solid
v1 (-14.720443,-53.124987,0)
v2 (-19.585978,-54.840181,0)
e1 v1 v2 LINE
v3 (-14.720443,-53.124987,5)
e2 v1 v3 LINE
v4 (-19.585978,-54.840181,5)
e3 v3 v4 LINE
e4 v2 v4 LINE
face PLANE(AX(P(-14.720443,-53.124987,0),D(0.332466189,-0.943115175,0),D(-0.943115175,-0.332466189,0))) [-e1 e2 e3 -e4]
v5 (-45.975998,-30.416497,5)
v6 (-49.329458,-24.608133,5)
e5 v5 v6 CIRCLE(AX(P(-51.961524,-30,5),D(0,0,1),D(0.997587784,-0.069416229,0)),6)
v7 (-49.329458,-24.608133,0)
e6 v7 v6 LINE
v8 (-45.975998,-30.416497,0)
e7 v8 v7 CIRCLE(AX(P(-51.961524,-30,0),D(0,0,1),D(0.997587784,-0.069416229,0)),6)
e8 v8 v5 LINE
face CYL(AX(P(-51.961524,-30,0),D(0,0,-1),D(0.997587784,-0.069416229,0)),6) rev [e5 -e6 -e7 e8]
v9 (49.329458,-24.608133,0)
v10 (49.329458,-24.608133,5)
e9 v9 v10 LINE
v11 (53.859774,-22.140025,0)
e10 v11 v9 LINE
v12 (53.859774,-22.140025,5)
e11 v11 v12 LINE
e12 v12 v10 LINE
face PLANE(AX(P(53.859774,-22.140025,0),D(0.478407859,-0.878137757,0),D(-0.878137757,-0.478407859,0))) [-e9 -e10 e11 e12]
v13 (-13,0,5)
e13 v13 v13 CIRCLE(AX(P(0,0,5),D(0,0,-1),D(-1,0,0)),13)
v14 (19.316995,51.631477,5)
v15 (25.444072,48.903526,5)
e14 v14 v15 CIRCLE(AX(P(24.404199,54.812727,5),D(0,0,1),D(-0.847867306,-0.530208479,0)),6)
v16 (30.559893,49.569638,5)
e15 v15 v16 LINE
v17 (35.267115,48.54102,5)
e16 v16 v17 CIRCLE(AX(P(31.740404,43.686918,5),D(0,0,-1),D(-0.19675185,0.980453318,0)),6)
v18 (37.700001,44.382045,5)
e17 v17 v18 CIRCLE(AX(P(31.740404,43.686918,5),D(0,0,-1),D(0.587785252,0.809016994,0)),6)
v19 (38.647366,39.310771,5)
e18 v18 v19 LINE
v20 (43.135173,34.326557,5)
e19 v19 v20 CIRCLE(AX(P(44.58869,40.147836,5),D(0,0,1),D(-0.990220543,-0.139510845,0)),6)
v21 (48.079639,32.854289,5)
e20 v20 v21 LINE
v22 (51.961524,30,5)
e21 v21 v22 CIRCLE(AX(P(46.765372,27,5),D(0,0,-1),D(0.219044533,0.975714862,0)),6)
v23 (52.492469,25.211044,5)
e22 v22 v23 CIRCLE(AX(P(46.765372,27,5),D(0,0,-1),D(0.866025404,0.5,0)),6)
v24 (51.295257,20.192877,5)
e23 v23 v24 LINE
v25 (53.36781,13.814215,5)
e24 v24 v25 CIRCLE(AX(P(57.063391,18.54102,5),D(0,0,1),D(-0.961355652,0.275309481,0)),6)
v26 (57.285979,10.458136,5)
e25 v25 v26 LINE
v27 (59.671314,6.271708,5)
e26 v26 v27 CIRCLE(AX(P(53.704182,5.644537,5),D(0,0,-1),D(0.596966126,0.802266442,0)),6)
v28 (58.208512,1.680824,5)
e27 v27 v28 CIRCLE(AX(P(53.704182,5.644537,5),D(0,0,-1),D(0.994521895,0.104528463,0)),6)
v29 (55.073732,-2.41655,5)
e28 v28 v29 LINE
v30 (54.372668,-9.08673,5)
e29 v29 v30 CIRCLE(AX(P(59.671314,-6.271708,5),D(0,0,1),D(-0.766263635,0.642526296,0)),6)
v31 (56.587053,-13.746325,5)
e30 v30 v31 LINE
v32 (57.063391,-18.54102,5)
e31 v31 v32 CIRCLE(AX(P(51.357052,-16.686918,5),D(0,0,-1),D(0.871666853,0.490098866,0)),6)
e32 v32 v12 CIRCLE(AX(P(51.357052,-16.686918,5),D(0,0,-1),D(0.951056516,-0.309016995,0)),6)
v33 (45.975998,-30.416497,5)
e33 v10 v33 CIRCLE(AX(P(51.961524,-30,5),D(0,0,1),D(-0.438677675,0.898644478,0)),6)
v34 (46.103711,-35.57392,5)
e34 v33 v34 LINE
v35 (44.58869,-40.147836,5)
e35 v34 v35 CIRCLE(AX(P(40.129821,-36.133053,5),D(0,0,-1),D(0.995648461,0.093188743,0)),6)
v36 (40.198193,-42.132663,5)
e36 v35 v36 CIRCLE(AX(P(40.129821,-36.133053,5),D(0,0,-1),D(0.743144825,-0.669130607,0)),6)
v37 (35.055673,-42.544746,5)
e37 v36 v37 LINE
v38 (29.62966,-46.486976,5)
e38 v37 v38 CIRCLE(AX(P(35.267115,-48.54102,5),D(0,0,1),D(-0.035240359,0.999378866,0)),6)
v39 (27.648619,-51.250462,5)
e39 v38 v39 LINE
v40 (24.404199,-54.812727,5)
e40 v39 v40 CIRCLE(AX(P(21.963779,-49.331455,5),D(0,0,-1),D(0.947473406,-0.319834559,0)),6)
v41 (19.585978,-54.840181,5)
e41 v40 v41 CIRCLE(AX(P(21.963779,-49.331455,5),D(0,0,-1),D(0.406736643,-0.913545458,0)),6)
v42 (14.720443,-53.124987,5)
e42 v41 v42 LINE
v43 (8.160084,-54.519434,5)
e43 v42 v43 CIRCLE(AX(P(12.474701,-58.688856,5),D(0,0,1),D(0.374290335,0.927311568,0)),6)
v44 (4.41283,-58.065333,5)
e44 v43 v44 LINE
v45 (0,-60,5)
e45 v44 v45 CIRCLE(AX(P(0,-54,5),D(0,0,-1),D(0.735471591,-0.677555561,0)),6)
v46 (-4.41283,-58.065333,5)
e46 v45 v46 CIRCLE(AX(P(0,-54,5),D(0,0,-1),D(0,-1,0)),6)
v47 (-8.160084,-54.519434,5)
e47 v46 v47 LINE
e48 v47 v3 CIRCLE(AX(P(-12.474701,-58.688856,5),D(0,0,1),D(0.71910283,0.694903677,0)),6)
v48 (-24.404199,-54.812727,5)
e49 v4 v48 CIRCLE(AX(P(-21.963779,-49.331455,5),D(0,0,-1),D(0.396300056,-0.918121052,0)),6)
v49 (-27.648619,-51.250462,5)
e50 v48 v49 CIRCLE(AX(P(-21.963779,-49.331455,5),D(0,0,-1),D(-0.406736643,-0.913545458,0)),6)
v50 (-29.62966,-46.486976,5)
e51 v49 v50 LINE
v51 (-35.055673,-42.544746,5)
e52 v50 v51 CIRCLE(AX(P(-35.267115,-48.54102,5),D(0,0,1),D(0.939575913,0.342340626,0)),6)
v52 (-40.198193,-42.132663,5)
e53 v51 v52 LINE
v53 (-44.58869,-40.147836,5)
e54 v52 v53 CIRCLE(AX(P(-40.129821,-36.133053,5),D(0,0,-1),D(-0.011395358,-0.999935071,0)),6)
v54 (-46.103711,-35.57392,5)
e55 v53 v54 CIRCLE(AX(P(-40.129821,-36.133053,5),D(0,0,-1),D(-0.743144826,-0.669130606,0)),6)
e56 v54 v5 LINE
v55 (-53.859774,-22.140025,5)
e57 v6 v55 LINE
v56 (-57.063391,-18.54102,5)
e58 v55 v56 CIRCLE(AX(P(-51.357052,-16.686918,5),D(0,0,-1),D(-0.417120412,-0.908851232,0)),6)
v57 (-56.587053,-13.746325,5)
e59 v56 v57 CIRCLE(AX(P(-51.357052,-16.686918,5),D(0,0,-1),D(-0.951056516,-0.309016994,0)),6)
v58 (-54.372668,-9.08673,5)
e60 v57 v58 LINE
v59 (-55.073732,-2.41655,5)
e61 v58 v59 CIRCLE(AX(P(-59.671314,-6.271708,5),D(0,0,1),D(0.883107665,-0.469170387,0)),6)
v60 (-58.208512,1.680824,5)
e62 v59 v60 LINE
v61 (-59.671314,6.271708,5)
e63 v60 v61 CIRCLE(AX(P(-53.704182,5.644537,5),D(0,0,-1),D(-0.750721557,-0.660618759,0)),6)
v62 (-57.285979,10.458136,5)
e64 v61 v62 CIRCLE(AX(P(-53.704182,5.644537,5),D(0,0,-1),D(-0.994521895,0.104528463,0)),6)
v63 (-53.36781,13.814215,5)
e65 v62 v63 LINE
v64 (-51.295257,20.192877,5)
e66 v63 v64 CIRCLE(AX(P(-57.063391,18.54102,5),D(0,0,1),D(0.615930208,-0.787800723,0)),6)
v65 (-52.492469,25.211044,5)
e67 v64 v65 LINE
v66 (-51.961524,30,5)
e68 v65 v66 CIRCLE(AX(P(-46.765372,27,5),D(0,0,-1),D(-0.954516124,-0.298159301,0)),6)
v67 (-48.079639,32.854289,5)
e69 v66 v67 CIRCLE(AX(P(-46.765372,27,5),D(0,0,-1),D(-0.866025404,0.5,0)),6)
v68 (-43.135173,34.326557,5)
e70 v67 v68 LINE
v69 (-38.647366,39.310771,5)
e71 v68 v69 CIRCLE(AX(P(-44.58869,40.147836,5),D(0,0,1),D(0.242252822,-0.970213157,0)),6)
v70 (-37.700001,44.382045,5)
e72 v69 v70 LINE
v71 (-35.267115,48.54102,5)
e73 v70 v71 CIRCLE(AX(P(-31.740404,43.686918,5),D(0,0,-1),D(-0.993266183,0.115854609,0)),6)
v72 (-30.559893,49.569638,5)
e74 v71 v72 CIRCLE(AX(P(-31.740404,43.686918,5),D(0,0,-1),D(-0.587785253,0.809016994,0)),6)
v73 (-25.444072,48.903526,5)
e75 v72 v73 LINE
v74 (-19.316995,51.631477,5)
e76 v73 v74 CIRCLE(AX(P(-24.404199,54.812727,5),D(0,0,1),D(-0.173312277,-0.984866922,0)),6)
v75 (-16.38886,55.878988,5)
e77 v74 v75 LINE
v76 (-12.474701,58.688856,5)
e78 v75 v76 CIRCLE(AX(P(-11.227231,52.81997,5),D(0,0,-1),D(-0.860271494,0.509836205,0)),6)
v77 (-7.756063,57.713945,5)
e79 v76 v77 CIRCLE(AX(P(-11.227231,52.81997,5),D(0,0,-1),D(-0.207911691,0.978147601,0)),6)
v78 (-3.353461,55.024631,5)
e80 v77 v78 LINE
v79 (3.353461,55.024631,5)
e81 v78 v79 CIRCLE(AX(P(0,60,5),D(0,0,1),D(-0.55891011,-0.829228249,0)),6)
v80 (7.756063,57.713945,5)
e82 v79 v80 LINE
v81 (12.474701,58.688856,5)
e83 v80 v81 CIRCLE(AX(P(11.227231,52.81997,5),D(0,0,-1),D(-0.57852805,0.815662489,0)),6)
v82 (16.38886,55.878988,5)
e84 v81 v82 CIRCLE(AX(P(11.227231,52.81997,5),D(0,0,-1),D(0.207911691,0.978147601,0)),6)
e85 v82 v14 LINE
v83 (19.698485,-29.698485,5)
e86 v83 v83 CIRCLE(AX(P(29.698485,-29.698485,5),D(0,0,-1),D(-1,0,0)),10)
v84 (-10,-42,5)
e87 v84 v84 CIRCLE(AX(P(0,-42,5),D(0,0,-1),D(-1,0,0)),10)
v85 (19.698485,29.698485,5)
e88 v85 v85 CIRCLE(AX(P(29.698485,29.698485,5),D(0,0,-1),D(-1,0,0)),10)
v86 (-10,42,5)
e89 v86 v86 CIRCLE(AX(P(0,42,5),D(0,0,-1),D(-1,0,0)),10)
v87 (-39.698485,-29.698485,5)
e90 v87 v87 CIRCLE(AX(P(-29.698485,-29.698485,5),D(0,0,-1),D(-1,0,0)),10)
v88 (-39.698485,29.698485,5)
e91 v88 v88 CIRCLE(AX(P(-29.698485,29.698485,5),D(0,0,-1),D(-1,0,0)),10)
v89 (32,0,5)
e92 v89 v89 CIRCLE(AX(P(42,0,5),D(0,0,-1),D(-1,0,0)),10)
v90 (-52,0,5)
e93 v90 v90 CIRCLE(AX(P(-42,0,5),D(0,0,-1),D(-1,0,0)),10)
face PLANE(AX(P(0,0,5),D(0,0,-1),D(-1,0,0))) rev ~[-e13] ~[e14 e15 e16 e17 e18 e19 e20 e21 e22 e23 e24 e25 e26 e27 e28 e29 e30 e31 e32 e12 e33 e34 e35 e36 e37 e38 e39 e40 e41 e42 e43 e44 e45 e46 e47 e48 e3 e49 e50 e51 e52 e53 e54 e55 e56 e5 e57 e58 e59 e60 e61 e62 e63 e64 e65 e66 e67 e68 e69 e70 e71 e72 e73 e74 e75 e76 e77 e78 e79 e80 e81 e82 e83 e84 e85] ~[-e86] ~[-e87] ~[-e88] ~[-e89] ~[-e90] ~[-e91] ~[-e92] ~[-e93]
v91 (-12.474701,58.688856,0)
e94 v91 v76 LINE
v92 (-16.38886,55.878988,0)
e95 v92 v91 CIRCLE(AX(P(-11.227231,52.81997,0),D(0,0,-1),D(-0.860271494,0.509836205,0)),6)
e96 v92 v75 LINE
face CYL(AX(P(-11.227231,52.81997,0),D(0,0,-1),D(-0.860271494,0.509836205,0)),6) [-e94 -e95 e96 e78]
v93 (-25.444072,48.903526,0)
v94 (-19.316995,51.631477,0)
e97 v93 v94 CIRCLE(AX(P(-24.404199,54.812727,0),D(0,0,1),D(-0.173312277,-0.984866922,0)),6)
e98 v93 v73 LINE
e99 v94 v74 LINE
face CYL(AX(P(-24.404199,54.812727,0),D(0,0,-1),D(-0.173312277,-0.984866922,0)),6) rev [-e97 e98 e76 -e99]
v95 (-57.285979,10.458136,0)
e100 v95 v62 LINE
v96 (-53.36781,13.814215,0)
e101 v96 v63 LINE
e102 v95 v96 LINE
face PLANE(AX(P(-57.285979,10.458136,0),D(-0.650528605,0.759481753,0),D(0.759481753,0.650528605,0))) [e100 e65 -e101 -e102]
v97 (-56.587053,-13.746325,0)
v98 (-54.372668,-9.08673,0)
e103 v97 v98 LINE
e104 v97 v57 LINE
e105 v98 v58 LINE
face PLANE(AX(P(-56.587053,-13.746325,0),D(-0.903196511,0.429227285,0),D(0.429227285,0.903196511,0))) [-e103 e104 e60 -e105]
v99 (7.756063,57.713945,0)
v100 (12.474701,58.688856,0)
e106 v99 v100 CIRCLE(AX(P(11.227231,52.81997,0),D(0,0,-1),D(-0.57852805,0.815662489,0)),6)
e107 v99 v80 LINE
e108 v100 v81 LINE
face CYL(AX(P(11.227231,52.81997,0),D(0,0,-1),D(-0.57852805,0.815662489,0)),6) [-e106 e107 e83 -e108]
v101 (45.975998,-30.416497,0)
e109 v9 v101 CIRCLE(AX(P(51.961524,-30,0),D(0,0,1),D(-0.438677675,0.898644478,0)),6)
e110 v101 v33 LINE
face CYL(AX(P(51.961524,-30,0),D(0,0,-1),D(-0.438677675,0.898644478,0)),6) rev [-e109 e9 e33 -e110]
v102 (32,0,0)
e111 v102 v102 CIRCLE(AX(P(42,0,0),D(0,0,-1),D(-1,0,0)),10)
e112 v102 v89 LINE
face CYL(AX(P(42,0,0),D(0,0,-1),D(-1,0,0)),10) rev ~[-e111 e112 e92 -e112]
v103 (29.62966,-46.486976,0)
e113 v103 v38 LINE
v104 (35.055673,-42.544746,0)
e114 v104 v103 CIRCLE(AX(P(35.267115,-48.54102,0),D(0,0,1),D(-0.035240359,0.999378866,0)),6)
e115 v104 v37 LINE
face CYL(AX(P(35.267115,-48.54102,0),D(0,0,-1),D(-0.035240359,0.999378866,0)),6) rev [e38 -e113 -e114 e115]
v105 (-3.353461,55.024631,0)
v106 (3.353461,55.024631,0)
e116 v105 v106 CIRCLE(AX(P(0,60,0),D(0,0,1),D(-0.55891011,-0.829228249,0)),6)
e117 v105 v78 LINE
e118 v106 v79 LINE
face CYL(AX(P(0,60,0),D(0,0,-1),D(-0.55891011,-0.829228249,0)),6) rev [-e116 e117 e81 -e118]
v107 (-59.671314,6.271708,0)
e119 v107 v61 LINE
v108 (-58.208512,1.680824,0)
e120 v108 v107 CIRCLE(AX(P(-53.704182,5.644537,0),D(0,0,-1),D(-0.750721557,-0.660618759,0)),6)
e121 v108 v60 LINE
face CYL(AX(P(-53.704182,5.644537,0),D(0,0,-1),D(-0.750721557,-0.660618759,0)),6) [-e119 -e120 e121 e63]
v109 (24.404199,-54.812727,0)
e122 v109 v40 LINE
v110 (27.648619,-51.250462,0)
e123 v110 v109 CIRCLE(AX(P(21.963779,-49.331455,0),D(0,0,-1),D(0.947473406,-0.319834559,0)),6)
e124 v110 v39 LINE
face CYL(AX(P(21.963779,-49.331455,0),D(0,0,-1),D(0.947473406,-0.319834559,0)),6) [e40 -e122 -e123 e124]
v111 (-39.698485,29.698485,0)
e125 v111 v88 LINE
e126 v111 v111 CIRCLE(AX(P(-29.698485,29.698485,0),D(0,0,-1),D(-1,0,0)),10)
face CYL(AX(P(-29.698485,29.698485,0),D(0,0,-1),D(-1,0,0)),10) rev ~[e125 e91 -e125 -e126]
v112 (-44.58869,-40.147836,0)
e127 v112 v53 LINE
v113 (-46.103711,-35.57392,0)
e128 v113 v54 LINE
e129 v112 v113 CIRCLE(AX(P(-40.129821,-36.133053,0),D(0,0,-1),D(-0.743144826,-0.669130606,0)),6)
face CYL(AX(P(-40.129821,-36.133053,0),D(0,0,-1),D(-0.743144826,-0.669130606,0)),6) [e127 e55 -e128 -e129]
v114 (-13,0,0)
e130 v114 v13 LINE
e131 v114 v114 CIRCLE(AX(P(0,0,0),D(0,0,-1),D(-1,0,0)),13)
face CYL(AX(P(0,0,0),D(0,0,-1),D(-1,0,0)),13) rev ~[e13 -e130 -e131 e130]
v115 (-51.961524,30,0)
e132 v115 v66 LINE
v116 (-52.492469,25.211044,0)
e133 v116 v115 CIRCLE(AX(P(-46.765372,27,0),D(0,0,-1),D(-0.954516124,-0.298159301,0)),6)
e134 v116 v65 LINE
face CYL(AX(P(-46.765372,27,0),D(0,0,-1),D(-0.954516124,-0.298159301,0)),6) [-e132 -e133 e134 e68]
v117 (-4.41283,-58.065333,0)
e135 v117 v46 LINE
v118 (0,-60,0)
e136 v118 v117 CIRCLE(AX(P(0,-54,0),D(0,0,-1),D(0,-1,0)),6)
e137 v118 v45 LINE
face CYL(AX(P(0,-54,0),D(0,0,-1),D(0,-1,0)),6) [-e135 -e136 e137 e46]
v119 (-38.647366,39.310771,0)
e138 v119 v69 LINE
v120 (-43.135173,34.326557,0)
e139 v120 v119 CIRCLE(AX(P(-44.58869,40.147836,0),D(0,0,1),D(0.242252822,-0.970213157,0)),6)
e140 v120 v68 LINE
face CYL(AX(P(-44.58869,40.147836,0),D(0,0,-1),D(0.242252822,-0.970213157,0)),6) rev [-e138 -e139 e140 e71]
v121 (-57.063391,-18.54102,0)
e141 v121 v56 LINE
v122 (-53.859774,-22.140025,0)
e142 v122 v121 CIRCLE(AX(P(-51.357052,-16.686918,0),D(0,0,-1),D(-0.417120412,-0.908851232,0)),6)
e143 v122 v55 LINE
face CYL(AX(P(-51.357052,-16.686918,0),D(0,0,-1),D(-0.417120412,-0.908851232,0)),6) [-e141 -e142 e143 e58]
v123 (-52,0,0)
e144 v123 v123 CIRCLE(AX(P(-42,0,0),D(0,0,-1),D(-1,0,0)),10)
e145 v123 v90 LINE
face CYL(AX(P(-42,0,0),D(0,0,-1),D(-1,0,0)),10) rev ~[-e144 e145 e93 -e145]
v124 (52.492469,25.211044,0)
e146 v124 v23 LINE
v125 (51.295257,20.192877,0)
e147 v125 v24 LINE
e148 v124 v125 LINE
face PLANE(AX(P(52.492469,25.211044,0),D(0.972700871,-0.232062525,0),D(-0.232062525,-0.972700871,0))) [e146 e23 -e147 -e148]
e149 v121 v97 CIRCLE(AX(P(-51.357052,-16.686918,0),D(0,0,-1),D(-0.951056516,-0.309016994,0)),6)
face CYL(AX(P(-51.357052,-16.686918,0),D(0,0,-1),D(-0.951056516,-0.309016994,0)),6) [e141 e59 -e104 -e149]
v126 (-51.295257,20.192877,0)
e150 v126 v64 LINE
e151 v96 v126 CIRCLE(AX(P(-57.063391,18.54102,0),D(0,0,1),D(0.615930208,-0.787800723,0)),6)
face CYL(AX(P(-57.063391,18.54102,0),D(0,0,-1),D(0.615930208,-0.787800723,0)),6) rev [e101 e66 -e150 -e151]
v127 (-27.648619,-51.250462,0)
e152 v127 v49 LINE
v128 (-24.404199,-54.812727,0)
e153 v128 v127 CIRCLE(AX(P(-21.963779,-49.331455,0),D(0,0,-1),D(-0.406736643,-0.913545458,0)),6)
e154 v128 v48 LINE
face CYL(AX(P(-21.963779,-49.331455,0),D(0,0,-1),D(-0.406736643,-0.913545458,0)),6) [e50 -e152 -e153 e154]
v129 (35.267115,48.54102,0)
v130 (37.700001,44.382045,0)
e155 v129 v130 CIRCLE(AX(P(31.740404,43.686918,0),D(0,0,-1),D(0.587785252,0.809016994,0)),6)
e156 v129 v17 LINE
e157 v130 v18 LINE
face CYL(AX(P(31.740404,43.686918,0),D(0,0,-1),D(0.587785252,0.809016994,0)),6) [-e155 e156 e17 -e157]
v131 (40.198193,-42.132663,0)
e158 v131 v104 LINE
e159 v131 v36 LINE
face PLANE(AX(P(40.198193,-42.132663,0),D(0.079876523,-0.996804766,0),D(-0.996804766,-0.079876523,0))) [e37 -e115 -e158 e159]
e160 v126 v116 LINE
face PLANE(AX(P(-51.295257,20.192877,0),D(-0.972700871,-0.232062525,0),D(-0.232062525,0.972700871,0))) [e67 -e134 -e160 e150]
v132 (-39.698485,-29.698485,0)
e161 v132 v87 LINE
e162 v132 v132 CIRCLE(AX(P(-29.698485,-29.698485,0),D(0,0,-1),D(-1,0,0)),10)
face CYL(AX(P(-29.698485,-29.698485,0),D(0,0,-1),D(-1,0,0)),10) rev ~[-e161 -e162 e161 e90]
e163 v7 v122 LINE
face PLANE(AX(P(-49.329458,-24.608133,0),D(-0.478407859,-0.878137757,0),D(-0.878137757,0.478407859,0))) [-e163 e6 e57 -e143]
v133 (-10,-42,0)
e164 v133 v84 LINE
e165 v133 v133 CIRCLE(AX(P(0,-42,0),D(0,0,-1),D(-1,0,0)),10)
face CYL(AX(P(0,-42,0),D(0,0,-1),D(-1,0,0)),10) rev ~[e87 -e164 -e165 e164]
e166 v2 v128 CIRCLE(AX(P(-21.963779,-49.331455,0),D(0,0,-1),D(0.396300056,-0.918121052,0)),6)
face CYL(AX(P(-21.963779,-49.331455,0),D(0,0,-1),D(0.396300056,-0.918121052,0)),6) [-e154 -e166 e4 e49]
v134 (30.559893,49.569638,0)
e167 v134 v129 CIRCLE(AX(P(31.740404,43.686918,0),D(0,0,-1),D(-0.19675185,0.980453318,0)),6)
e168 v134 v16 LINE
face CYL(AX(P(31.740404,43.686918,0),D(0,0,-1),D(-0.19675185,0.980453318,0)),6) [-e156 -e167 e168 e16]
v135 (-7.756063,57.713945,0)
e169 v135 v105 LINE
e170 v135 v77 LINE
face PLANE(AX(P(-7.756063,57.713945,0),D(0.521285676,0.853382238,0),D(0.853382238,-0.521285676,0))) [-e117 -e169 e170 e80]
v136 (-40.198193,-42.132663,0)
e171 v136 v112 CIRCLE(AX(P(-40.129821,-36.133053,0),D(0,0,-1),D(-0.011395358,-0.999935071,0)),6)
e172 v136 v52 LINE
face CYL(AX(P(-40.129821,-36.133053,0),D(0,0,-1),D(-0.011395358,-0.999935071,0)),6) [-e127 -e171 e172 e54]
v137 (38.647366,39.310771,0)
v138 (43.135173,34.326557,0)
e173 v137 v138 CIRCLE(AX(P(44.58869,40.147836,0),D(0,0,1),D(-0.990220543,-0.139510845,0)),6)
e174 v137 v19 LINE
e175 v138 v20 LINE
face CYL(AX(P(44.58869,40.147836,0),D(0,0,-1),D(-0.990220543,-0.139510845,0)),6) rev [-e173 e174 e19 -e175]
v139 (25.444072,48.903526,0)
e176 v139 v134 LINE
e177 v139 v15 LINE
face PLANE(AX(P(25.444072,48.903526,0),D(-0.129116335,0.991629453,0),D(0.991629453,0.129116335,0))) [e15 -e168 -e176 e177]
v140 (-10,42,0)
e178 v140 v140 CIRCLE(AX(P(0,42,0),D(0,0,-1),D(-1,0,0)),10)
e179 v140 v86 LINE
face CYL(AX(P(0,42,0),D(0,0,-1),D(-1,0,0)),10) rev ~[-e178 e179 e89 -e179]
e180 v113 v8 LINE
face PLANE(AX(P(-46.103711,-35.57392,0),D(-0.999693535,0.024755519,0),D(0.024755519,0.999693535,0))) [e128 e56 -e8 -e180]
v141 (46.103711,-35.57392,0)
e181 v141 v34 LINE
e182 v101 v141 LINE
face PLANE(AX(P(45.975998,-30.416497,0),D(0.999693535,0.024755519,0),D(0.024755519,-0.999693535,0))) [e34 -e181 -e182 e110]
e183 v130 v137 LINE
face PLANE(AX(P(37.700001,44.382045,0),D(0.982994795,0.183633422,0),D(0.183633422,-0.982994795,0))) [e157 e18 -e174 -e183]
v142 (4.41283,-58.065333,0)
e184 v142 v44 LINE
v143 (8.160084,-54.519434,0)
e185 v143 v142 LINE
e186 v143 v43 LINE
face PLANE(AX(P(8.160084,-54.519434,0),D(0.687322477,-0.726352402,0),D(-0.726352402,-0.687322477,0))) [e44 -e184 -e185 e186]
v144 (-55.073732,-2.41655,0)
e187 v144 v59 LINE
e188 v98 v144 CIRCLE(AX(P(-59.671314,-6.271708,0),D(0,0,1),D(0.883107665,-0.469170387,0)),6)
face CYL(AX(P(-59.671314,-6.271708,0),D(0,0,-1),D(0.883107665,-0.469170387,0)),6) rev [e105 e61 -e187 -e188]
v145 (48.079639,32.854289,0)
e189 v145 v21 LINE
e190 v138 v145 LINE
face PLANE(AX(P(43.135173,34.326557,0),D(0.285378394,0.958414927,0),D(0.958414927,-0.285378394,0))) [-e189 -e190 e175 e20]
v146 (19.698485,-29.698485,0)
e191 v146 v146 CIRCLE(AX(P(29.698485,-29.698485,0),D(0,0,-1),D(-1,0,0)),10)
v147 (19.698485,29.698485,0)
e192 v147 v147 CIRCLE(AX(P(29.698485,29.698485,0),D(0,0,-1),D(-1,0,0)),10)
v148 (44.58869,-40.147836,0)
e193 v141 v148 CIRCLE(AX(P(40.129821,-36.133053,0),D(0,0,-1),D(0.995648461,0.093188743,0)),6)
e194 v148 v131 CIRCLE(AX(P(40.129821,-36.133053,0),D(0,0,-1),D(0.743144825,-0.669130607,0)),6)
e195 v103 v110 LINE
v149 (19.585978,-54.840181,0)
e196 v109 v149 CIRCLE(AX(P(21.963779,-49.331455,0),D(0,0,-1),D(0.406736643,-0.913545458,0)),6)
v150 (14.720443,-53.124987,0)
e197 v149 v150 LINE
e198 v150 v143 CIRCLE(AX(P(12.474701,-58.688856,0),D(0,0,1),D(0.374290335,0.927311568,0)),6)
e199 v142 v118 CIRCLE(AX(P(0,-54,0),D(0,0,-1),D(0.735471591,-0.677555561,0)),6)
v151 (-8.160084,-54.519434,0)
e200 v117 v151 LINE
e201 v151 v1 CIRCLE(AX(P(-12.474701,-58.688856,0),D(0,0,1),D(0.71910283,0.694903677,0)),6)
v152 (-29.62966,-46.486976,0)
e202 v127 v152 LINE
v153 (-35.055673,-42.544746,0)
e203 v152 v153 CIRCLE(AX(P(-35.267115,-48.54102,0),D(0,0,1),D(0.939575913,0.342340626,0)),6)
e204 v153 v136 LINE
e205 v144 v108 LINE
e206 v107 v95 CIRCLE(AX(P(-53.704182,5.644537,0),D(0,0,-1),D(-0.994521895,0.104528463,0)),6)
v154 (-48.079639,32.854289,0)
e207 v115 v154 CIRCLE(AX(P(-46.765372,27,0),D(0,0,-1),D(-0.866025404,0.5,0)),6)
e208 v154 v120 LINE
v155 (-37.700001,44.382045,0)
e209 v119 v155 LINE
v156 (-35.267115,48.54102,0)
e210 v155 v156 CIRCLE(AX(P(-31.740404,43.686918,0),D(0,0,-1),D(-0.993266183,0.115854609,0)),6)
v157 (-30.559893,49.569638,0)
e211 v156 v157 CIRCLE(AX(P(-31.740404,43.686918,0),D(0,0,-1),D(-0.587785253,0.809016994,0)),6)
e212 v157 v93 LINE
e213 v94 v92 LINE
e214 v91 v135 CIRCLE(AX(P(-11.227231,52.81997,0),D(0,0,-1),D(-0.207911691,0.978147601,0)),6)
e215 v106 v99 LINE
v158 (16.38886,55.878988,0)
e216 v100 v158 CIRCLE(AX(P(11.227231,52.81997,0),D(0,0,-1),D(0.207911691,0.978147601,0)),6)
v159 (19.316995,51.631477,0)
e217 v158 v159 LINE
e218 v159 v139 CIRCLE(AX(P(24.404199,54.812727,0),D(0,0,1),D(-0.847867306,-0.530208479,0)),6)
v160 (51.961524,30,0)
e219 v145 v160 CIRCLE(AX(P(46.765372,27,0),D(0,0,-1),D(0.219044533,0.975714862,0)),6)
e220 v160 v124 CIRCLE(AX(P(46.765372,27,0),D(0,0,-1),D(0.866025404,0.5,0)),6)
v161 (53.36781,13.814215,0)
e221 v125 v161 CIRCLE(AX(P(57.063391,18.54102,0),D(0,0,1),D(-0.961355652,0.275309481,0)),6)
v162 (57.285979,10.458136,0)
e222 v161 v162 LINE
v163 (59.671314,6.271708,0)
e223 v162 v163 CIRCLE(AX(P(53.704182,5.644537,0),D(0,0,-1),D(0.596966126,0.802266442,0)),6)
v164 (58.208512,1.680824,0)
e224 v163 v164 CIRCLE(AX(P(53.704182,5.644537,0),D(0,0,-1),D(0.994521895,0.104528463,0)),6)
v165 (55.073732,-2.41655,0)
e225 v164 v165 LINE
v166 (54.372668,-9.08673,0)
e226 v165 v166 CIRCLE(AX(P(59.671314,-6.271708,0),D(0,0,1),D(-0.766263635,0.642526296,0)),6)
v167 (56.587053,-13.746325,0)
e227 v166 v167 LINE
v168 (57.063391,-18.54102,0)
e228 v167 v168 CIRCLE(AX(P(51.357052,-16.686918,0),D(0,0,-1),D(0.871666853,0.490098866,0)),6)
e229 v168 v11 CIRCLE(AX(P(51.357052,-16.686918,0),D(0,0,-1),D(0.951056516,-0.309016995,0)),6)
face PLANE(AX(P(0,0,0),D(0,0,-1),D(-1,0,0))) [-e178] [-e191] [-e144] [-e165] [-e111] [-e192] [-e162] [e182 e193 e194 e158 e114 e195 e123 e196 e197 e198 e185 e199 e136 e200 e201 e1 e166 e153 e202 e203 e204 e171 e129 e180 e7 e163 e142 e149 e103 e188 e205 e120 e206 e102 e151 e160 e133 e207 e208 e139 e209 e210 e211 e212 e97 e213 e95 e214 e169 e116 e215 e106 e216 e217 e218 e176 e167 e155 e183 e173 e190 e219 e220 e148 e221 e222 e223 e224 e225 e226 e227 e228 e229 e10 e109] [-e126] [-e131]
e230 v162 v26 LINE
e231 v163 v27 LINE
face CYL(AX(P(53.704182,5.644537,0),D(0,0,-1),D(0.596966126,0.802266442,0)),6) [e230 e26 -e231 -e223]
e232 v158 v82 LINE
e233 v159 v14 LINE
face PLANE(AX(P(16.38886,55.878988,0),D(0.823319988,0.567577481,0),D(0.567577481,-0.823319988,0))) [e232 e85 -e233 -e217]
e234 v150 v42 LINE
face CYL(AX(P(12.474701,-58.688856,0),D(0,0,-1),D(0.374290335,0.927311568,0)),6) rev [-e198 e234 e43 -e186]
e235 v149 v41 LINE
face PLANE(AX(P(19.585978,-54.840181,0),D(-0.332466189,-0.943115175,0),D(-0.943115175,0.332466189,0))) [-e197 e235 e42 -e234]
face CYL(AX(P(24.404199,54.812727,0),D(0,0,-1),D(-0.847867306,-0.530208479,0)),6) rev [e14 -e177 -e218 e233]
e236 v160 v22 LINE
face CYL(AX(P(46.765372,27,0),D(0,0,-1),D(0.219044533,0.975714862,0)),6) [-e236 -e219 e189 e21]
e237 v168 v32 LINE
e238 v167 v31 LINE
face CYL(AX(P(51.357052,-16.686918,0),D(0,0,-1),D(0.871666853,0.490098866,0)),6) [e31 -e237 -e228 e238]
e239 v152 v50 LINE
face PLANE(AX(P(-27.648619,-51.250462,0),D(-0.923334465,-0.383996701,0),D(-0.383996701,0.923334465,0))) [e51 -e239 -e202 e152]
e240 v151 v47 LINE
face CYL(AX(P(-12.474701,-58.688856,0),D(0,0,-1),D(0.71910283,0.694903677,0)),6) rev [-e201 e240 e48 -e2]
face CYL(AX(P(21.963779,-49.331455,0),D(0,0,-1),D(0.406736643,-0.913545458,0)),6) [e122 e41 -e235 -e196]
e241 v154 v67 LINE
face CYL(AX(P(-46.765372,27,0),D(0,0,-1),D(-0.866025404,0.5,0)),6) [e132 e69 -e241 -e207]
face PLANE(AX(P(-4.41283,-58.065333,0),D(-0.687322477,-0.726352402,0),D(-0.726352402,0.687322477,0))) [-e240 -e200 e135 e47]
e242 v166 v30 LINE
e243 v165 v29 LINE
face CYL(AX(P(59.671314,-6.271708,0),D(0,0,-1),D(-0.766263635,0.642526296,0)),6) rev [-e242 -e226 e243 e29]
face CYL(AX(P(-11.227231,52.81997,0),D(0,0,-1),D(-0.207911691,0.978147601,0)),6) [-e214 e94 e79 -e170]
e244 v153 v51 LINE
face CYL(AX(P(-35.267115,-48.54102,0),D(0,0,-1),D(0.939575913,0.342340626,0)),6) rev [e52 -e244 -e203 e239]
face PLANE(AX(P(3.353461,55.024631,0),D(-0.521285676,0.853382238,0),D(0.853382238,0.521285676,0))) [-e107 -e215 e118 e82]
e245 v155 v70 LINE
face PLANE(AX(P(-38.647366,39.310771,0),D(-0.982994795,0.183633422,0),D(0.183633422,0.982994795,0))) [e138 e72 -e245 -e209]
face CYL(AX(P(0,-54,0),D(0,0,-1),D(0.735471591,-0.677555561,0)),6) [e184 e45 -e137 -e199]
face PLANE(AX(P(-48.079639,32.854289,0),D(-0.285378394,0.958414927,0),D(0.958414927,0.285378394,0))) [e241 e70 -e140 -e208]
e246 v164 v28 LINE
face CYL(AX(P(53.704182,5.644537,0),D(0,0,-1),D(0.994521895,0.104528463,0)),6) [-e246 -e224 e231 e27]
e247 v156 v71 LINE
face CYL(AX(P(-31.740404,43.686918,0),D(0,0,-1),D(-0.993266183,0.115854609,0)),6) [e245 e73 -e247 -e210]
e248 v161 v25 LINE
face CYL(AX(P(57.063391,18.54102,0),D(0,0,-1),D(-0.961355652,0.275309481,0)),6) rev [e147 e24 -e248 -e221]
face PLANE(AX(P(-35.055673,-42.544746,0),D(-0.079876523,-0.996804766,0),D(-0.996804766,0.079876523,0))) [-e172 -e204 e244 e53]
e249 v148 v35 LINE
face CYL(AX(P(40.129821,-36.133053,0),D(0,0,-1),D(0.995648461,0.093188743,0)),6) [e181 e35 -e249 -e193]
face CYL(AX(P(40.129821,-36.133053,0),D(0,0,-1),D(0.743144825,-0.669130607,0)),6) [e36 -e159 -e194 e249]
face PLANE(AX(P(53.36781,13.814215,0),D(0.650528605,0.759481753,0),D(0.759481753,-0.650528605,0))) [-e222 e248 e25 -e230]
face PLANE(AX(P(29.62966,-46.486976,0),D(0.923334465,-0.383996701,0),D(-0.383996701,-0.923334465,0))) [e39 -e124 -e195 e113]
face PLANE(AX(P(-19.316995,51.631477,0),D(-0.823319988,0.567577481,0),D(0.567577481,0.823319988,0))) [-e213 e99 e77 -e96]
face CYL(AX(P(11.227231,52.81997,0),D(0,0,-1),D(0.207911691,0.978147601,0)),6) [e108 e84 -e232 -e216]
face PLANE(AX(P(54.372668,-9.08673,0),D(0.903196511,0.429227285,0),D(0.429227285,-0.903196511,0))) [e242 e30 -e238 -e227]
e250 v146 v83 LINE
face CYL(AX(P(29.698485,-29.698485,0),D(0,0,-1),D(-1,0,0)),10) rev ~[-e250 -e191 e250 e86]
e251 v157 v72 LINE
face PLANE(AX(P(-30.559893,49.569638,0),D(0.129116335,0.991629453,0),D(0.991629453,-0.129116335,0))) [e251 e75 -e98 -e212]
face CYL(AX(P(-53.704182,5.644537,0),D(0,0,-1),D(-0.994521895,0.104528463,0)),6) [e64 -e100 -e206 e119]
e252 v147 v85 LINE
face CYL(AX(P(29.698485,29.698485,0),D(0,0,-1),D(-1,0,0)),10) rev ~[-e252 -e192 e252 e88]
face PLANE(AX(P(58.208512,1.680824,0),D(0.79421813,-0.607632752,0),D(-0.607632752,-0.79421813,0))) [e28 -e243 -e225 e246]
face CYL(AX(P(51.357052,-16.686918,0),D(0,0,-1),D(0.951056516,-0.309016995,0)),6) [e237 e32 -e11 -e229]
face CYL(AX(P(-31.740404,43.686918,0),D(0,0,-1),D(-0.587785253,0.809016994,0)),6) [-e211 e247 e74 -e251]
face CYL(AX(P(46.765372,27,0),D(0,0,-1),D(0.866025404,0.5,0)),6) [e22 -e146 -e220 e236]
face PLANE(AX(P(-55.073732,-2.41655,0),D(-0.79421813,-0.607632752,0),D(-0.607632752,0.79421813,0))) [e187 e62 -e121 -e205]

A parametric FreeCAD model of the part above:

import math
import FreeCAD as App
import Part
import Sketcher
from FreeCAD import Vector

doc = App.newDocument("Part")
body = doc.addObject("PartDesign::Body", "Body")

sketch1 = body.newObject("Sketcher::SketchObject", "Sketch")
sketch1.AttachmentSupport = (doc.getObject("XY_Plane"), [""])
sketch1.MapMode = "FlatFace"
sketch1.addGeometry([
    Part.LineSegment(Vector(-3.4, 55, 0), Vector(-7.8, 57.7, 0)),
    Part.ArcOfCircle(Part.Circle(Vector(-11.2, 52.8, 0), Vector(0, 0, 1), 6), math.radians(55), math.radians(102)),
    Part.ArcOfCircle(Part.Circle(Vector(-11.2, 52.8, 0), Vector(0, 0, 1), 6), math.radians(102), math.radians(149)),
    Part.LineSegment(Vector(-16.4, 55.9, 0), Vector(-19.3, 51.6, 0)),
    Part.ArcOfCircle(Part.Circle(Vector(-24.4, 54.8, 0), Vector(0, 0, 1), 6), math.radians(-100), math.radians(-32)),
    Part.LineSegment(Vector(-25.4, 48.9, 0), Vector(-30.6, 49.6, 0)),
    Part.ArcOfCircle(Part.Circle(Vector(-31.7, 43.7, 0), Vector(0, 0, 1), 6), math.radians(79), math.radians(126)),
    Part.ArcOfCircle(Part.Circle(Vector(-31.7, 43.7, 0), Vector(0, 0, 1), 6), math.radians(126), math.radians(173)),
    Part.LineSegment(Vector(-37.7, 44.4, 0), Vector(-38.6, 39.3, 0)),
    Part.ArcOfCircle(Part.Circle(Vector(-44.6, 40.1, 0), Vector(0, 0, 1), 6), math.radians(-76), math.radians(-8)),
    Part.LineSegment(Vector(-43.1, 34.3, 0), Vector(-48.1, 32.9, 0)),
    Part.ArcOfCircle(Part.Circle(Vector(-46.8, 27, 0), Vector(0, 0, 1), 6), math.radians(103), math.radians(150)),
    Part.ArcOfCircle(Part.Circle(Vector(-46.8, 27, 0), Vector(0, 0, 1), 6), math.radians(150), math.radians(197)),
    Part.LineSegment(Vector(-52.5, 25.2, 0), Vector(-51.3, 20.2, 0)),
    Part.ArcOfCircle(Part.Circle(Vector(-57.1, 18.5, 0), Vector(0, 0, 1), 6), math.radians(-52), math.radians(16)),
    Part.LineSegment(Vector(-53.4, 13.8, 0), Vector(-57.3, 10.5, 0)),
    Part.ArcOfCircle(Part.Circle(Vector(-53.7, 5.6, 0), Vector(0, 0, 1), 6), math.radians(127), math.radians(174)),
    Part.ArcOfCircle(Part.Circle(Vector(-53.7, 5.6, 0), Vector(0, 0, 1), 6), math.radians(174), math.radians(221)),
    Part.LineSegment(Vector(-58.2, 1.7, 0), Vector(-55.1, -2.4, 0)),
    Part.ArcOfCircle(Part.Circle(Vector(-59.7, -6.3, 0), Vector(0, 0, 1), 6), math.radians(-28), math.radians(40)),
    Part.LineSegment(Vector(-54.4, -9.1, 0), Vector(-56.6, -13.7, 0)),
    Part.ArcOfCircle(Part.Circle(Vector(-51.4, -16.7, 0), Vector(0, 0, 1), 6), math.radians(151), math.radians(198)),
    Part.ArcOfCircle(Part.Circle(Vector(-51.4, -16.7, 0), Vector(0, 0, 1), 6), math.radians(-162), math.radians(-115)),
    Part.LineSegment(Vector(-53.9, -22.1, 0), Vector(-49.3, -24.6, 0)),
    Part.ArcOfCircle(Part.Circle(Vector(-52, -30, 0), Vector(0, 0, 1), 6), math.radians(-4), math.radians(64)),
    Part.LineSegment(Vector(-46, -30.4, 0), Vector(-46.1, -35.6, 0)),
    Part.ArcOfCircle(Part.Circle(Vector(-40.1, -36.1, 0), Vector(0, 0, 1), 6), math.radians(175), math.radians(222)),
    Part.ArcOfCircle(Part.Circle(Vector(-40.1, -36.1, 0), Vector(0, 0, 1), 6), math.radians(-138), math.radians(-91)),
    Part.LineSegment(Vector(-40.2, -42.1, 0), Vector(-35.1, -42.5, 0)),
    Part.ArcOfCircle(Part.Circle(Vector(-35.3, -48.5, 0), Vector(0, 0, 1), 6), math.radians(20), math.radians(88)),
    Part.LineSegment(Vector(-29.6, -46.5, 0), Vector(-27.6, -51.3, 0)),
    Part.ArcOfCircle(Part.Circle(Vector(-22, -49.3, 0), Vector(0, 0, 1), 6), math.radians(-161), math.radians(-114)),
    Part.ArcOfCircle(Part.Circle(Vector(-22, -49.3, 0), Vector(0, 0, 1), 6), math.radians(-114), math.radians(-67)),
    Part.LineSegment(Vector(-19.6, -54.8, 0), Vector(-14.7, -53.1, 0)),
    Part.ArcOfCircle(Part.Circle(Vector(-12.5, -58.7, 0), Vector(0, 0, 1), 6), math.radians(44), math.radians(112)),
    Part.LineSegment(Vector(-8.2, -54.5, 0), Vector(-4.4, -58.1, 0)),
    Part.ArcOfCircle(Part.Circle(Vector(0, -54, 0), Vector(0, 0, 1), 6), math.radians(-137), math.radians(-90)),
    Part.ArcOfCircle(Part.Circle(Vector(0, -54, 0), Vector(0, 0, 1), 6), math.radians(-90), math.radians(-43)),
    Part.LineSegment(Vector(4.4, -58.1, 0), Vector(8.2, -54.5, 0)),
    Part.ArcOfCircle(Part.Circle(Vector(12.5, -58.7, 0), Vector(0, 0, 1), 6), math.radians(68), math.radians(136)),
    Part.LineSegment(Vector(14.7, -53.1, 0), Vector(19.6, -54.8, 0)),
    Part.ArcOfCircle(Part.Circle(Vector(22, -49.3, 0), Vector(0, 0, 1), 6), math.radians(-113), math.radians(-66)),
    Part.ArcOfCircle(Part.Circle(Vector(22, -49.3, 0), Vector(0, 0, 1), 6), math.radians(-66), math.radians(-19)),
    Part.LineSegment(Vector(27.6, -51.3, 0), Vector(29.6, -46.5, 0)),
    Part.ArcOfCircle(Part.Circle(Vector(35.3, -48.5, 0), Vector(0, 0, 1), 6), math.radians(92), math.radians(160)),
    Part.LineSegment(Vector(35.1, -42.5, 0), Vector(40.2, -42.1, 0)),
    Part.ArcOfCircle(Part.Circle(Vector(40.1, -36.1, 0), Vector(0, 0, 1), 6), math.radians(-89), math.radians(-42)),
    Part.ArcOfCircle(Part.Circle(Vector(40.1, -36.1, 0), Vector(0, 0, 1), 6), math.radians(-42), math.radians(5)),
    Part.LineSegment(Vector(46.1, -35.6, 0), Vector(46, -30.4, 0)),
    Part.ArcOfCircle(Part.Circle(Vector(52, -30, 0), Vector(0, 0, 1), 6), math.radians(116), math.radians(184)),
    Part.LineSegment(Vector(49.3, -24.6, 0), Vector(53.9, -22.1, 0)),
    Part.ArcOfCircle(Part.Circle(Vector(51.4, -16.7, 0), Vector(0, 0, 1), 6), math.radians(-65), math.radians(-18)),
    Part.ArcOfCircle(Part.Circle(Vector(51.4, -16.7, 0), Vector(0, 0, 1), 6), math.radians(-18), math.radians(29)),
    Part.LineSegment(Vector(56.6, -13.7, 0), Vector(54.4, -9.1, 0)),
    Part.ArcOfCircle(Part.Circle(Vector(59.7, -6.3, 0), Vector(0, 0, 1), 6), math.radians(140), math.radians(208)),
    Part.LineSegment(Vector(55.1, -2.4, 0), Vector(58.2, 1.7, 0)),
    Part.ArcOfCircle(Part.Circle(Vector(53.7, 5.6, 0), Vector(0, 0, 1), 6), math.radians(-41), math.radians(6)),
    Part.ArcOfCircle(Part.Circle(Vector(53.7, 5.6, 0), Vector(0, 0, 1), 6), math.radians(6), math.radians(53)),
    Part.LineSegment(Vector(57.3, 10.5, 0), Vector(53.4, 13.8, 0)),
    Part.ArcOfCircle(Part.Circle(Vector(57.1, 18.5, 0), Vector(0, 0, 1), 6), math.radians(164), math.radians(232)),
    Part.LineSegment(Vector(51.3, 20.2, 0), Vector(52.5, 25.2, 0)),
    Part.ArcOfCircle(Part.Circle(Vector(46.8, 27, 0), Vector(0, 0, 1), 6), math.radians(-17), math.radians(30)),
    Part.ArcOfCircle(Part.Circle(Vector(46.8, 27, 0), Vector(0, 0, 1), 6), math.radians(30), math.radians(77)),
    Part.LineSegment(Vector(48.1, 32.9, 0), Vector(43.1, 34.3, 0)),
    Part.ArcOfCircle(Part.Circle(Vector(44.6, 40.1, 0), Vector(0, 0, 1), 6), math.radians(-172), math.radians(-104)),
    Part.LineSegment(Vector(38.6, 39.3, 0), Vector(37.7, 44.4, 0)),
    Part.ArcOfCircle(Part.Circle(Vector(31.7, 43.7, 0), Vector(0, 0, 1), 6), math.radians(7), math.radians(54)),
    Part.ArcOfCircle(Part.Circle(Vector(31.7, 43.7, 0), Vector(0, 0, 1), 6), math.radians(54), math.radians(101)),
    Part.LineSegment(Vector(30.6, 49.6, 0), Vector(25.4, 48.9, 0)),
    Part.ArcOfCircle(Part.Circle(Vector(24.4, 54.8, 0), Vector(0, 0, 1), 6), math.radians(-148), math.radians(-80)),
    Part.LineSegment(Vector(19.3, 51.6, 0), Vector(16.4, 55.9, 0)),
    Part.ArcOfCircle(Part.Circle(Vector(11.2, 52.8, 0), Vector(0, 0, 1), 6), math.radians(31), math.radians(78)),
    Part.ArcOfCircle(Part.Circle(Vector(11.2, 52.8, 0), Vector(0, 0, 1), 6), math.radians(78), math.radians(125)),
    Part.LineSegment(Vector(7.8, 57.7, 0), Vector(3.4, 55, 0)),
    Part.ArcOfCircle(Part.Circle(Vector(0, 60, 0), Vector(0, 0, 1), 6), math.radians(-124), math.radians(-56)),
], False)
sketch1.addConstraint([
    Sketcher.Constraint("Coincident", 0, 2, 1, 1),
    Sketcher.Constraint("Tangent", 1, 2, 2, 1),
    Sketcher.Constraint("Coincident", 2, 2, 3, 1),
    Sketcher.Constraint("Coincident", 3, 2, 4, 2),
    Sketcher.Constraint("Coincident", 4, 1, 5, 1),
    Sketcher.Constraint("Coincident", 5, 2, 6, 1),
    Sketcher.Constraint("Tangent", 6, 2, 7, 1),
    Sketcher.Constraint("Coincident", 7, 2, 8, 1),
    Sketcher.Constraint("Coincident", 8, 2, 9, 2),
    Sketcher.Constraint("Coincident", 9, 1, 10, 1),
    Sketcher.Constraint("Coincident", 10, 2, 11, 1),
    Sketcher.Constraint("Tangent", 11, 2, 12, 1),
    Sketcher.Constraint("Coincident", 12, 2, 13, 1),
    Sketcher.Constraint("Coincident", 13, 2, 14, 2),
    Sketcher.Constraint("Coincident", 14, 1, 15, 1),
    Sketcher.Constraint("Coincident", 15, 2, 16, 1),
    Sketcher.Constraint("Tangent", 16, 2, 17, 1),
    Sketcher.Constraint("Coincident", 17, 2, 18, 1),
    Sketcher.Constraint("Coincident", 18, 2, 19, 2),
    Sketcher.Constraint("Coincident", 19, 1, 20, 1),
    Sketcher.Constraint("Coincident", 20, 2, 21, 1),
    Sketcher.Constraint("Tangent", 21, 2, 22, 1),
    Sketcher.Constraint("Coincident", 22, 2, 23, 1),
    Sketcher.Constraint("Coincident", 23, 2, 24, 2),
    Sketcher.Constraint("Coincident", 24, 1, 25, 1),
    Sketcher.Constraint("Coincident", 25, 2, 26, 1),
    Sketcher.Constraint("Tangent", 26, 2, 27, 1),
    Sketcher.Constraint("Coincident", 27, 2, 28, 1),
    Sketcher.Constraint("Coincident", 28, 2, 29, 2),
    Sketcher.Constraint("Coincident", 29, 1, 30, 1),
    Sketcher.Constraint("Coincident", 30, 2, 31, 1),
    Sketcher.Constraint("Tangent", 31, 2, 32, 1),
    Sketcher.Constraint("Coincident", 32, 2, 33, 1),
    Sketcher.Constraint("Coincident", 33, 2, 34, 2),
    Sketcher.Constraint("Coincident", 34, 1, 35, 1),
    Sketcher.Constraint("Coincident", 35, 2, 36, 1),
    Sketcher.Constraint("Tangent", 36, 2, 37, 1),
    Sketcher.Constraint("Coincident", 37, 2, 38, 1),
    Sketcher.Constraint("Coincident", 38, 2, 39, 2),
    Sketcher.Constraint("Coincident", 39, 1, 40, 1),
    Sketcher.Constraint("Coincident", 40, 2, 41, 1),
    Sketcher.Constraint("Tangent", 41, 2, 42, 1),
    Sketcher.Constraint("Coincident", 42, 2, 43, 1),
    Sketcher.Constraint("Coincident", 43, 2, 44, 2),
    Sketcher.Constraint("Coincident", 44, 1, 45, 1),
    Sketcher.Constraint("Coincident", 45, 2, 46, 1),
    Sketcher.Constraint("Tangent", 46, 2, 47, 1),
    Sketcher.Constraint("Coincident", 47, 2, 48, 1),
    Sketcher.Constraint("Coincident", 48, 2, 49, 2),
    Sketcher.Constraint("Coincident", 49, 1, 50, 1),
    Sketcher.Constraint("Coincident", 50, 2, 51, 1),
    Sketcher.Constraint("Tangent", 51, 2, 52, 1),
    Sketcher.Constraint("Coincident", 52, 2, 53, 1),
    Sketcher.Constraint("Coincident", 53, 2, 54, 2),
    Sketcher.Constraint("Coincident", 54, 1, 55, 1),
    Sketcher.Constraint("Coincident", 55, 2, 56, 1),
    Sketcher.Constraint("Tangent", 56, 2, 57, 1),
    Sketcher.Constraint("Coincident", 57, 2, 58, 1),
    Sketcher.Constraint("Coincident", 58, 2, 59, 2),
    Sketcher.Constraint("Coincident", 59, 1, 60, 1),
    Sketcher.Constraint("Coincident", 60, 2, 61, 1),
    Sketcher.Constraint("Tangent", 61, 2, 62, 1),
    Sketcher.Constraint("Coincident", 62, 2, 63, 1),
    Sketcher.Constraint("Coincident", 63, 2, 64, 2),
    Sketcher.Constraint("Coincident", 64, 1, 65, 1),
    Sketcher.Constraint("Coincident", 65, 2, 66, 1),
    Sketcher.Constraint("Tangent", 66, 2, 67, 1),
    Sketcher.Constraint("Coincident", 67, 2, 68, 1),
    Sketcher.Constraint("Coincident", 68, 2, 69, 2),
    Sketcher.Constraint("Coincident", 69, 1, 70, 1),
    Sketcher.Constraint("Coincident", 70, 2, 71, 1),
    Sketcher.Constraint("Tangent", 71, 2, 72, 1),
    Sketcher.Constraint("Coincident", 72, 2, 73, 1),
    Sketcher.Constraint("Coincident", 73, 2, 74, 2),
    Sketcher.Constraint("Coincident", 74, 1, 0, 1),
    Sketcher.Constraint("Equal", 1, 2),
    Sketcher.Constraint("Equal", 2, 4),
    Sketcher.Constraint("Equal", 4, 6),
    Sketcher.Constraint("Equal", 6, 7),
    Sketcher.Constraint("Equal", 7, 9),
    Sketcher.Constraint("Equal", 9, 11),
    Sketcher.Constraint("Equal", 11, 12),
    Sketcher.Constraint("Equal", 12, 14),
    Sketcher.Constraint("Equal", 14, 16),
    Sketcher.Constraint("Equal", 16, 17),
    Sketcher.Constraint("Equal", 17, 19),
    Sketcher.Constraint("Equal", 19, 21),
    Sketcher.Constraint("Equal", 21, 22),
    Sketcher.Constraint("Equal", 22, 24),
    Sketcher.Constraint("Equal", 24, 26),
    Sketcher.Constraint("Equal", 26, 27),
    Sketcher.Constraint("Equal", 27, 29),
    Sketcher.Constraint("Equal", 29, 31),
    Sketcher.Constraint("Equal", 31, 32),
    Sketcher.Constraint("Equal", 32, 34),
    Sketcher.Constraint("Equal", 34, 36),
    Sketcher.Constraint("Equal", 36, 37),
    Sketcher.Constraint("Equal", 37, 39),
    Sketcher.Constraint("Equal", 39, 41),
    Sketcher.Constraint("Equal", 41, 42),
    Sketcher.Constraint("Equal", 42, 44),
    Sketcher.Constraint("Equal", 44, 46),
    Sketcher.Constraint("Equal", 46, 47),
    Sketcher.Constraint("Equal", 47, 49),
    Sketcher.Constraint("Equal", 49, 51),
    Sketcher.Constraint("Equal", 51, 52),
    Sketcher.Constraint("Equal", 52, 54),
    Sketcher.Constraint("Equal", 54, 56),
    Sketcher.Constraint("Equal", 56, 57),
    Sketcher.Constraint("Equal", 57, 59),
    Sketcher.Constraint("Equal", 59, 61),
    Sketcher.Constraint("Equal", 61, 62),
    Sketcher.Constraint("Equal", 62, 64),
    Sketcher.Constraint("Equal", 64, 66),
    Sketcher.Constraint("Equal", 66, 67),
    Sketcher.Constraint("Equal", 67, 69),
    Sketcher.Constraint("Equal", 69, 71),
    Sketcher.Constraint("Equal", 71, 72),
    Sketcher.Constraint("Equal", 72, 74),
    Sketcher.Constraint("Symmetric", 34, 3, 39, 3, -2),
    Sketcher.Constraint("Symmetric", 31, 3, 41, 3, -2),
    Sketcher.Constraint("Symmetric", 29, 3, 44, 3, -2),
    Sketcher.Constraint("Symmetric", 26, 3, 46, 3, -2),
    Sketcher.Constraint("Symmetric", 24, 3, 49, 3, -2),
    Sketcher.Constraint("Symmetric", 21, 3, 51, 3, -2),
    Sketcher.Constraint("Symmetric", 19, 3, 54, 3, -2),
    Sketcher.Constraint("Symmetric", 16, 3, 56, 3, -2),
    Sketcher.Constraint("Symmetric", 14, 3, 59, 3, -2),
    Sketcher.Constraint("Symmetric", 11, 3, 61, 3, -2),
    Sketcher.Constraint("Symmetric", 9, 3, 64, 3, -2),
    Sketcher.Constraint("Symmetric", 6, 3, 66, 3, -2),
    Sketcher.Constraint("Symmetric", 4, 3, 69, 3, -2),
    Sketcher.Constraint("Symmetric", 1, 3, 71, 3, -2),
    Sketcher.Constraint("Symmetric", 35, 2, 37, 2, -2),
    Sketcher.Constraint("Symmetric", 73, 2, 74, 1, -2),
    Sketcher.Constraint("PointOnObject", 36, 2, -2),
    Sketcher.Constraint("Horizontal", 34, 1, 38, 2),
    Sketcher.Constraint("Horizontal", 33, 2, 39, 1),
    Sketcher.Constraint("Horizontal", 32, 2, 40, 2),
    Sketcher.Constraint("Horizontal", 31, 2, 41, 2),
    Sketcher.Constraint("Horizontal", 30, 2, 42, 2),
    Sketcher.Constraint("Horizontal", 29, 1, 43, 2),
    Sketcher.Constraint("Horizontal", 28, 2, 44, 1),
    Sketcher.Constraint("Horizontal", 27, 2, 45, 2),
    Sketcher.Constraint("Horizontal", 26, 2, 46, 2),
    Sketcher.Constraint("Horizontal", 25, 2, 47, 2),
    Sketcher.Constraint("Horizontal", 24, 1, 48, 2),
    Sketcher.Constraint("Horizontal", 23, 2, 49, 1),
    Sketcher.Constraint("Horizontal", 22, 2, 50, 2),
    Sketcher.Constraint("Horizontal", 21, 2, 51, 2),
    Sketcher.Constraint("Horizontal", 20, 2, 52, 2),
    Sketcher.Constraint("Horizontal", 19, 1, 53, 2),
    Sketcher.Constraint("Horizontal", 18, 2, 54, 1),
    Sketcher.Constraint("Horizontal", 17, 2, 55, 2),
    Sketcher.Constraint("Horizontal", 16, 2, 56, 2),
    Sketcher.Constraint("Horizontal", 15, 2, 57, 2),
    Sketcher.Constraint("Horizontal", 14, 1, 58, 2),
    Sketcher.Constraint("Horizontal", 13, 2, 59, 1),
    Sketcher.Constraint("Horizontal", 12, 2, 60, 2),
    Sketcher.Constraint("Horizontal", 11, 2, 61, 2),
    Sketcher.Constraint("Horizontal", 10, 2, 62, 2),
    Sketcher.Constraint("Horizontal", 9, 1, 63, 2),
    Sketcher.Constraint("Horizontal", 8, 2, 64, 1),
    Sketcher.Constraint("Horizontal", 7, 2, 65, 2),
    Sketcher.Constraint("Horizontal", 6, 2, 66, 2),
    Sketcher.Constraint("Horizontal", 5, 2, 67, 2),
    Sketcher.Constraint("Horizontal", 4, 1, 68, 2),
    Sketcher.Constraint("Horizontal", 3, 2, 69, 1),
    Sketcher.Constraint("Horizontal", 2, 2, 70, 2),
    Sketcher.Constraint("Horizontal", 1, 2, 71, 2),
    Sketcher.Constraint("Horizontal", 0, 2, 72, 2),
    Sketcher.Constraint("Vertical", 34, 3, 1, 2),
    Sketcher.Constraint("Vertical", 29, 3, 6, 2),
    Sketcher.Constraint("Vertical", 24, 3, 11, 2),
    Sketcher.Constraint("Vertical", 19, 3, 16, 2),
    Sketcher.Constraint("Vertical", 14, 3, 21, 2),
    Sketcher.Constraint("Vertical", 9, 3, 26, 2),
    Sketcher.Constraint("Vertical", 4, 3, 31, 2),
    Sketcher.Constraint("Equal", 0, 3),
    Sketcher.Constraint("Equal", 3, 5),
    Sketcher.Constraint("Equal", 5, 8),
    Sketcher.Constraint("Equal", 8, 10),
    Sketcher.Constraint("Equal", 10, 13),
    Sketcher.Constraint("Equal", 13, 15),
    Sketcher.Constraint("Equal", 15, 18),
    Sketcher.Constraint("Equal", 18, 20),
    Sketcher.Constraint("Equal", 20, 23),
    Sketcher.Constraint("Equal", 23, 25),
    Sketcher.Constraint("Equal", 25, 28),
    Sketcher.Constraint("Equal", 28, 30),
    Sketcher.Constraint("Equal", 30, 33),
    Sketcher.Constraint("Equal", 33, 35),
    Sketcher.Constraint("Radius", 1, 6.0),
    Sketcher.Constraint("DistanceY", -1, 1, 11, 3, 27.0),
    Sketcher.Constraint("DistanceY", 24, 3, -1, 1, 30.0),
    Sketcher.Constraint("DistanceY", 36, 3, -1, 1, 54.0),
    Sketcher.Constraint("DistanceY", -1, 1, 74, 3, 60.0),
    Sketcher.Constraint("DistanceY", -1, 1, 11, 2, 30.0),
    Sketcher.Constraint("DistanceX", 7, 2, -1, 1, 37.700001),
    Sketcher.Constraint("DistanceX", 4, 3, -1, 1, 24.404199),
    Sketcher.Constraint("DistanceX", 34, 3, -1, 1, 12.474701),
    Sketcher.Constraint("DistanceX", 1, 3, -1, 1, 11.227231),
    Sketcher.Constraint("DistanceY", -1, 1, 1, 3, 52.81997),
    Sketcher.Constraint("DistanceX", 9, 3, -1, 1, 44.58869),
    Sketcher.Constraint("DistanceX", 11, 3, -1, 1, 46.765372),
    Sketcher.Constraint("DistanceX", 14, 3, -1, 1, 57.063391),
    Sketcher.Constraint("DistanceY", -1, 1, 14, 3, 18.54102),
    Sketcher.Constraint("DistanceX", 21, 3, -1, 1, 51.357052),
    Sketcher.Constraint("DistanceX", 26, 3, -1, 1, 40.129821),
    Sketcher.Constraint("DistanceY", 29, 3, -1, 1, 48.54102),
    Sketcher.Constraint("DistanceX", 31, 3, -1, 1, 21.963779),
    Sketcher.Constraint("DistanceX", 2, 2, -1, 1, 16.38886),
    Sketcher.Constraint("DistanceY", -1, 1, 6, 2, 48.54102),
    Sketcher.Constraint("DistanceY", -1, 1, 8, 2, 39.310771),
    Sketcher.Constraint("DistanceX", 10, 2, -1, 1, 48.079639),
    Sketcher.Constraint("DistanceX", 12, 2, -1, 1, 52.492469),
    Sketcher.Constraint("DistanceX", 14, 1, -1, 1, 53.36781),
    Sketcher.Constraint("DistanceX", 15, 2, -1, 1, 57.285979),
    Sketcher.Constraint("DistanceX", 17, 2, -1, 1, 58.208512),
    Sketcher.Constraint("DistanceX", 18, 2, -1, 1, 55.073732),
    Sketcher.Constraint("DistanceY", 18, 2, -1, 1, 2.41655),
    Sketcher.Constraint("DistanceY", 19, 1, -1, 1, 9.08673),
    Sketcher.Constraint("DistanceY", 21, 2, -1, 1, 18.54102),
    Sketcher.Constraint("DistanceX", 23, 2, -1, 1, 49.329458),
    Sketcher.Constraint("DistanceX", 25, 2, -1, 1, 46.103711),
    Sketcher.Constraint("DistanceY", 25, 2, -1, 1, 35.57392),
    Sketcher.Constraint("DistanceX", 29, 1, -1, 1, 29.62966),
    Sketcher.Constraint("DistanceX", 30, 2, -1, 1, 27.648619),
    Sketcher.Constraint("DistanceX", 32, 2, -1, 1, 19.585978),
    Sketcher.Constraint("DistanceY", 32, 2, -1, 1, 54.840181),
    Sketcher.Constraint("DistanceX", 35, 2, -1, 1, 4.41283),
    Sketcher.Constraint("DistanceX", -1, 1, 73, 2, 3.353461),
    Sketcher.Constraint("Distance", 0, 5.159004),
    Sketcher.Constraint("DistanceY", -1, 1, 4, 3, 54.812727),
    Sketcher.Constraint("DistanceY", -1, 1, 9, 3, 40.147836),
    Sketcher.Constraint("DistanceX", 19, 3, -1, 1, 59.671314),
    Sketcher.Constraint("DistanceY", 34, 3, -1, 1, 58.688856),
    Sketcher.Constraint("DistanceX", 4, 1, -1, 1, 25.444072),
    Sketcher.Constraint("DistanceX", 27, 2, -1, 1, 40.198193),
])
pad1 = body.newObject("PartDesign::Pad", "Pad")
pad1.Profile = sketch1
pad1.Length = 5

sketch2 = body.newObject("Sketcher::SketchObject", "Sketch001")
sketch2.AttachmentSupport = (doc.getObject("XY_Plane"), [""])
sketch2.MapMode = "FlatFace"
sketch2.addGeometry([
    Part.Circle(Vector(0, 0, 0), Vector(0, 0, 1), 13),
    Part.Circle(Vector(0, 42, 0), Vector(0, 0, 1), 10),
    Part.Circle(Vector(-30, 30, 0), Vector(0, 0, 1), 10),
    Part.Circle(Vector(-42, 0, 0), Vector(0, 0, 1), 10),
    Part.Circle(Vector(-30, -30, 0), Vector(0, 0, 1), 10),
    Part.Circle(Vector(0, -42, 0), Vector(0, 0, 1), 10),
    Part.Circle(Vector(30, -30, 0), Vector(0, 0, 1), 10),
    Part.Circle(Vector(42, 0, 0), Vector(0, 0, 1), 10),
    Part.Circle(Vector(30, 30, 0), Vector(0, 0, 1), 10),
], False)
sketch2.addConstraint([
    Sketcher.Constraint("Coincident", 0, 3, -1, 1),
    Sketcher.Constraint("Equal", 1, 2),
    Sketcher.Constraint("Equal", 2, 3),
    Sketcher.Constraint("Equal", 3, 4),
    Sketcher.Constraint("Equal", 4, 5),
    Sketcher.Constraint("Equal", 5, 6),
    Sketcher.Constraint("Equal", 6, 7),
    Sketcher.Constraint("Equal", 7, 8),
    Sketcher.Constraint("Symmetric", 1, 3, 5, 3, -1, 1),
    Sketcher.Constraint("Symmetric", 2, 3, 6, 3, -1, 1),
    Sketcher.Constraint("Symmetric", 3, 3, 7, 3, -1, 1),
    Sketcher.Constraint("Symmetric", 4, 3, 8, 3, -1, 1),
    Sketcher.Constraint("Symmetric", 4, 3, 6, 3, -2),
    Sketcher.Constraint("PointOnObject", 1, 3, -2),
    Sketcher.Constraint("PointOnObject", 3, 3, -1),
    Sketcher.Constraint("Diameter", 0, 26.0),
    Sketcher.Constraint("Diameter", 1, 20.0),
    Sketcher.Constraint("DistanceY", -1, 1, 1, 3, 42.0),
    Sketcher.Constraint("DistanceX", 3, 3, -1, 1, 42.0),
    Sketcher.Constraint("DistanceY", 4, 3, 2, 3, 59.39697),
    Sketcher.Constraint("DistanceX", 4, 3, 6, 3, 59.39697),
])
pocket1 = body.newObject("PartDesign::Pocket", "Pocket")
pocket1.Profile = sketch2
pocket1.Type = "ThroughAll"
pocket1.Reversed = True

doc.recompute()
